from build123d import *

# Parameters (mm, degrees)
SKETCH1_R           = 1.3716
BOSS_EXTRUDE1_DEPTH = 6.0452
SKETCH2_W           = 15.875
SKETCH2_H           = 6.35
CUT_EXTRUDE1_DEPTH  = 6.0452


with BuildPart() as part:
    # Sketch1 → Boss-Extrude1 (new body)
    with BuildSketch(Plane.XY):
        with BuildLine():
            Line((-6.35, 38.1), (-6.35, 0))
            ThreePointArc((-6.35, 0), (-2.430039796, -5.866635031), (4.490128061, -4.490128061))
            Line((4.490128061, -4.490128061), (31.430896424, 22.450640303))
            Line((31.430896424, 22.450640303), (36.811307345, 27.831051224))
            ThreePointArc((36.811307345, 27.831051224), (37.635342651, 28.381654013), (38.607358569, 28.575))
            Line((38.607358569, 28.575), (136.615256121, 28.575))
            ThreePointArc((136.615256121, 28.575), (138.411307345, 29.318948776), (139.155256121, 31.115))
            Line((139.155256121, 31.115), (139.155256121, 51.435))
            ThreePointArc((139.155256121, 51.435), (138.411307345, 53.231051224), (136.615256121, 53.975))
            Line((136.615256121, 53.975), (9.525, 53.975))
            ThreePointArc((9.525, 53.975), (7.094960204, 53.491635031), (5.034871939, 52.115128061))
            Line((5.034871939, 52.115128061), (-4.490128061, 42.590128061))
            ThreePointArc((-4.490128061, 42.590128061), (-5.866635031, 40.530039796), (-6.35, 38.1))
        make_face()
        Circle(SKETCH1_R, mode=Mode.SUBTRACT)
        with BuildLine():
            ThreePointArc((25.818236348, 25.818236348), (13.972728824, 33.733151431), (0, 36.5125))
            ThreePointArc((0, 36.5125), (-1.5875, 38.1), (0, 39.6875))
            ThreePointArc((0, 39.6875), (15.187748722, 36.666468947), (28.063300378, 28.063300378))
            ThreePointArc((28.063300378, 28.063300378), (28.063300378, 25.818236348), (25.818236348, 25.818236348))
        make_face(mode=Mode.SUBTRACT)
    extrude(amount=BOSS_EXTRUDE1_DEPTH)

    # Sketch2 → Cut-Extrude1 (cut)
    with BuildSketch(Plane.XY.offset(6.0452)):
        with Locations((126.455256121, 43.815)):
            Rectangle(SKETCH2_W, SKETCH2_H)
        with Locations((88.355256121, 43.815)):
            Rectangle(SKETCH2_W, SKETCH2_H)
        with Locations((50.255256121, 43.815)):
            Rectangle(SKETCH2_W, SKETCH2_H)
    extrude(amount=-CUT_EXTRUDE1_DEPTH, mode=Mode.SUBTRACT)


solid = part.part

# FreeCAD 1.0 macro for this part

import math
import FreeCAD as App
import Part
import Sketcher

V = App.Vector
Q = App.Units.Quantity

doc = App.newDocument("Part")
body = doc.addObject("PartDesign::Body", "Body")

# Sketch on XY plane
sketch1 = doc.addObject("Sketcher::SketchObject", "Sketch")
body.addObject(sketch1)
sketch1.AttachmentSupport = (doc.XY_Plane, [""])
sketch1.MapMode = "FlatFace"
sketch1.addGeometry([
    Part.LineSegment(V(-6.35, 38.1, 0), V(-6.35, 0, 0)),  # 0
    Part.ArcOfCircle(Part.Circle(V(0, 0, 0), V(0, 0, 1), 6.35), math.radians(-180), math.radians(-45)),  # 1
    Part.LineSegment(V(4.490128, -4.490128, 0), V(31.430896, 22.45064, 0)),  # 2
    Part.LineSegment(V(31.430896, 22.45064, 0), V(36.811307, 27.831051, 0)),  # 3
    Part.ArcOfCircle(Part.Circle(V(38.607359, 26.035, 0), V(0, 0, 1), 2.54), math.radians(90), math.radians(135)),  # 4
    Part.LineSegment(V(38.607359, 28.575, 0), V(136.615256, 28.575, 0)),  # 5
    Part.ArcOfCircle(Part.Circle(V(136.615256, 31.115, 0), V(0, 0, 1), 2.54), math.radians(-90), math.radians(0)),  # 6
    Part.LineSegment(V(139.155256, 31.115, 0), V(139.155256, 51.435, 0)),  # 7
    Part.ArcOfCircle(Part.Circle(V(136.615256, 51.435, 0), V(0, 0, 1), 2.54), math.radians(0), math.radians(90)),  # 8
    Part.LineSegment(V(136.615256, 53.975, 0), V(9.525, 53.975, 0)),  # 9
    Part.ArcOfCircle(Part.Circle(V(9.525, 47.625, 0), V(0, 0, 1), 6.35), math.radians(90), math.radians(135)),  # 10
    Part.LineSegment(V(5.034872, 52.115128, 0), V(-4.490128, 42.590128, 0)),  # 11
    Part.ArcOfCircle(Part.Circle(V(0, 38.1, 0), V(0, 0, 1), 6.35), math.radians(135), math.radians(180)),  # 12
    Part.Circle(V(0, 0, 0), V(0, 0, 1), 1.3716),  # 13
    Part.ArcOfCircle(Part.Circle(V(26.940768, 26.940768, 0), V(0, 0, 1), 1.5875), math.radians(-135), math.radians(45)),  # 14
    Part.ArcOfCircle(Part.Circle(V(0, 0, 0), V(0, 0, 1), 36.5125), math.radians(45), math.radians(90)),  # 15
    Part.ArcOfCircle(Part.Circle(V(0, 38.1, 0), V(0, 0, 1), 1.5875), math.radians(90), math.radians(270)),  # 16
    Part.ArcOfCircle(Part.Circle(V(0, 0, 0), V(0, 0, 1), 39.6875), math.radians(45), math.radians(90)),  # 17
], False)
sketch1.addConstraint([
    Sketcher.Constraint("Tangent", 0, 2, 1, 1),
    Sketcher.Constraint("Tangent", 1, 2, 2, 1),
    Sketcher.Constraint("Coincident", 2, 2, 3, 1),
    Sketcher.Constraint("Tangent", 3, 2, 4, 2),
    Sketcher.Constraint("Tangent", 4, 1, 5, 1),
    Sketcher.Constraint("Tangent", 5, 2, 6, 1),
    Sketcher.Constraint("Tangent", 6, 2, 7, 1),
    Sketcher.Constraint("Tangent", 7, 2, 8, 1),
    Sketcher.Constraint("Tangent", 8, 2, 9, 1),
    Sketcher.Constraint("Tangent", 9, 2, 10, 1),
    Sketcher.Constraint("Tangent", 10, 2, 11, 1),
    Sketcher.Constraint("Tangent", 11, 2, 12, 1),
    Sketcher.Constraint("Tangent", 12, 2, 0, 1),
    Sketcher.Constraint("Tangent", 14, 1, 15, 1),
    Sketcher.Constraint("Tangent", 15, 2, 16, 2),
    Sketcher.Constraint("Tangent", 16, 1, 17, 2),
    Sketcher.Constraint("Tangent", 17, 1, 14, 2),
    Sketcher.Constraint("Vertical", 0),
    Sketcher.Constraint("Horizontal", 5),
    Sketcher.Constraint("Vertical", 7),
    Sketcher.Constraint("Horizontal", 9),
    Sketcher.Constraint("Coincident", 1, 3, -1, 1),
    Sketcher.Constraint("Coincident", 13, 3, -1, 1),
    Sketcher.Constraint("Coincident", 15, 3, -1, 1),
    Sketcher.Constraint("Coincident", 17, 3, -1, 1),
    Sketcher.Constraint("Coincident", 16, 3, 12, 3),
    Sketcher.Constraint("Equal", 4, 6),
    Sketcher.Constraint("Equal", 6, 8),
    Sketcher.Constraint("Equal", 1, 10),
    Sketcher.Constraint("Equal", 10, 12),
    Sketcher.Constraint("Parallel", 2, 3),
    Sketcher.Constraint("Parallel", 3, 11),
    Sketcher.Constraint("Radius", 4, Q("0.1 in")),
    Sketcher.Constraint("Radius", 1, Q("0.25 in")),
    Sketcher.Constraint("Diameter", 13, Q("0.108 in")),
    Sketcher.Constraint("DistanceY", 0, 2, 0, 1, Q("1.5 in")),
    Sketcher.Constraint("DistanceY", 7, 1, 7, 2, Q("0.8 in")),
    Sketcher.Constraint("Angle", 2, Q("45 deg")),
    Sketcher.Constraint("Radius", 14, Q("0.0625 in")),
    Sketcher.Constraint("Distance", 2, Q("1.5 in")),
    Sketcher.Constraint("DistanceY", -1, 1, 4, 3, Q("1.025 in")),
    Sketcher.Constraint("DistanceX", -1, 1, 17, 1, 28.0633),
    Sketcher.Constraint("DistanceX", 5, 1, 5, 2, 98.007898),
])
pad1 = doc.addObject("PartDesign::Pad", "Pad")
body.addObject(pad1)
pad1.Profile = sketch1
pad1.Length = Q("0.238 in")

# Sketch on XY plane
sketch2 = doc.addObject("Sketcher::SketchObject", "Sketch001")
body.addObject(sketch2)
sketch2.AttachmentSupport = (doc.XY_Plane, [""])
sketch2.MapMode = "FlatFace"
sketch2.AttachmentOffset = App.Placement(V(0, 0, 0.238 * 25.4), App.Rotation())
sketch2.addGeometry([
    Part.LineSegment(V(118.517756, 46.99, 0), V(118.517756, 40.64, 0)),  # 0
    Part.LineSegment(V(118.517756, 40.64, 0), V(134.392756, 40.64, 0)),  # 1
    Part.LineSegment(V(134.392756, 40.64, 0), V(134.392756, 46.99, 0)),  # 2
    Part.LineSegment(V(134.392756, 46.99, 0), V(118.517756, 46.99, 0)),  # 3
    Part.LineSegment(V(80.417756, 46.99, 0), V(80.417756, 40.64, 0)),  # 4
    Part.LineSegment(V(80.417756, 40.64, 0), V(96.292756, 40.64, 0)),  # 5
    Part.LineSegment(V(96.292756, 40.64, 0), V(96.292756, 46.99, 0)),  # 6
    Part.LineSegment(V(96.292756, 46.99, 0), V(80.417756, 46.99, 0)),  # 7
    Part.LineSegment(V(42.317756, 46.99, 0), V(42.317756, 40.64, 0)),  # 8
    Part.LineSegment(V(42.317756, 40.64, 0), V(58.192756, 40.64, 0)),  # 9
    Part.LineSegment(V(58.192756, 40.64, 0), V(58.192756, 46.99, 0)),  # 10
    Part.LineSegment(V(58.192756, 46.99, 0), V(42.317756, 46.99, 0)),  # 11
], False)
sketch2.addConstraint([
    Sketcher.Constraint("Coincident", 0, 2, 1, 1),
    Sketcher.Constraint("Coincident", 1, 2, 2, 1),
    Sketcher.Constraint("Coincident", 2, 2, 3, 1),
    Sketcher.Constraint("Coincident", 3, 2, 0, 1),
    Sketcher.Constraint("Coincident", 4, 2, 5, 1),
    Sketcher.Constraint("Coincident", 5, 2, 6, 1),
    Sketcher.Constraint("Coincident", 6, 2, 7, 1),
    Sketcher.Constraint("Coincident", 7, 2, 4, 1),
    Sketcher.Constraint("Coincident", 8, 2, 9, 1),
    Sketcher.Constraint("Coincident", 9, 2, 10, 1),
    Sketcher.Constraint("Coincident", 10, 2, 11, 1),
    Sketcher.Constraint("Coincident", 11, 2, 8, 1),
    Sketcher.Constraint("Vertical", 0),
    Sketcher.Constraint("Horizontal", 1),
    Sketcher.Constraint("Vertical", 2),
    Sketcher.Constraint("Horizontal", 3),
    Sketcher.Constraint("Vertical", 4),
    Sketcher.Constraint("Horizontal", 5),
    Sketcher.Constraint("Vertical", 6),
    Sketcher.Constraint("Horizontal", 7),
    Sketcher.Constraint("Vertical", 8),
    Sketcher.Constraint("Horizontal", 9),
    Sketcher.Constraint("Vertical", 10),
    Sketcher.Constraint("Horizontal", 11),
    Sketcher.Constraint("Horizontal", 1, 2, 4, 2),
    Sketcher.Constraint("Horizontal", 3, 2, 6, 2),
    Sketcher.Constraint("Horizontal", 5, 2, 8, 2),
    Sketcher.Constraint("Horizontal", 7, 2, 10, 2),
    Sketcher.Constraint("Equal", 3, 5),
    Sketcher.Constraint("Equal", 7, 9),
    Sketcher.Constraint("DistanceX", 8, 2, 0, 2, Q("3 in")),
    Sketcher.Constraint("DistanceY", 0, 2, 0, 1, Q("0.25 in")),
    Sketcher.Constraint("DistanceY", -1, 1, 0, 2, Q("1.6 in")),
    Sketcher.Constraint("DistanceX", 4, 2, 0, 2, Q("1.5 in")),
    Sketcher.Constraint("DistanceX", 1, 1, 1, 2, Q("0.625 in")),
    Sketcher.Constraint("DistanceX", -1, 1, 0, 2, 118.517756),
])
pocket1 = doc.addObject("PartDesign::Pocket", "Pocket")
body.addObject(pocket1)
pocket1.Profile = sketch2
pocket1.Length = Q("0.238 in")

doc.recompute()
